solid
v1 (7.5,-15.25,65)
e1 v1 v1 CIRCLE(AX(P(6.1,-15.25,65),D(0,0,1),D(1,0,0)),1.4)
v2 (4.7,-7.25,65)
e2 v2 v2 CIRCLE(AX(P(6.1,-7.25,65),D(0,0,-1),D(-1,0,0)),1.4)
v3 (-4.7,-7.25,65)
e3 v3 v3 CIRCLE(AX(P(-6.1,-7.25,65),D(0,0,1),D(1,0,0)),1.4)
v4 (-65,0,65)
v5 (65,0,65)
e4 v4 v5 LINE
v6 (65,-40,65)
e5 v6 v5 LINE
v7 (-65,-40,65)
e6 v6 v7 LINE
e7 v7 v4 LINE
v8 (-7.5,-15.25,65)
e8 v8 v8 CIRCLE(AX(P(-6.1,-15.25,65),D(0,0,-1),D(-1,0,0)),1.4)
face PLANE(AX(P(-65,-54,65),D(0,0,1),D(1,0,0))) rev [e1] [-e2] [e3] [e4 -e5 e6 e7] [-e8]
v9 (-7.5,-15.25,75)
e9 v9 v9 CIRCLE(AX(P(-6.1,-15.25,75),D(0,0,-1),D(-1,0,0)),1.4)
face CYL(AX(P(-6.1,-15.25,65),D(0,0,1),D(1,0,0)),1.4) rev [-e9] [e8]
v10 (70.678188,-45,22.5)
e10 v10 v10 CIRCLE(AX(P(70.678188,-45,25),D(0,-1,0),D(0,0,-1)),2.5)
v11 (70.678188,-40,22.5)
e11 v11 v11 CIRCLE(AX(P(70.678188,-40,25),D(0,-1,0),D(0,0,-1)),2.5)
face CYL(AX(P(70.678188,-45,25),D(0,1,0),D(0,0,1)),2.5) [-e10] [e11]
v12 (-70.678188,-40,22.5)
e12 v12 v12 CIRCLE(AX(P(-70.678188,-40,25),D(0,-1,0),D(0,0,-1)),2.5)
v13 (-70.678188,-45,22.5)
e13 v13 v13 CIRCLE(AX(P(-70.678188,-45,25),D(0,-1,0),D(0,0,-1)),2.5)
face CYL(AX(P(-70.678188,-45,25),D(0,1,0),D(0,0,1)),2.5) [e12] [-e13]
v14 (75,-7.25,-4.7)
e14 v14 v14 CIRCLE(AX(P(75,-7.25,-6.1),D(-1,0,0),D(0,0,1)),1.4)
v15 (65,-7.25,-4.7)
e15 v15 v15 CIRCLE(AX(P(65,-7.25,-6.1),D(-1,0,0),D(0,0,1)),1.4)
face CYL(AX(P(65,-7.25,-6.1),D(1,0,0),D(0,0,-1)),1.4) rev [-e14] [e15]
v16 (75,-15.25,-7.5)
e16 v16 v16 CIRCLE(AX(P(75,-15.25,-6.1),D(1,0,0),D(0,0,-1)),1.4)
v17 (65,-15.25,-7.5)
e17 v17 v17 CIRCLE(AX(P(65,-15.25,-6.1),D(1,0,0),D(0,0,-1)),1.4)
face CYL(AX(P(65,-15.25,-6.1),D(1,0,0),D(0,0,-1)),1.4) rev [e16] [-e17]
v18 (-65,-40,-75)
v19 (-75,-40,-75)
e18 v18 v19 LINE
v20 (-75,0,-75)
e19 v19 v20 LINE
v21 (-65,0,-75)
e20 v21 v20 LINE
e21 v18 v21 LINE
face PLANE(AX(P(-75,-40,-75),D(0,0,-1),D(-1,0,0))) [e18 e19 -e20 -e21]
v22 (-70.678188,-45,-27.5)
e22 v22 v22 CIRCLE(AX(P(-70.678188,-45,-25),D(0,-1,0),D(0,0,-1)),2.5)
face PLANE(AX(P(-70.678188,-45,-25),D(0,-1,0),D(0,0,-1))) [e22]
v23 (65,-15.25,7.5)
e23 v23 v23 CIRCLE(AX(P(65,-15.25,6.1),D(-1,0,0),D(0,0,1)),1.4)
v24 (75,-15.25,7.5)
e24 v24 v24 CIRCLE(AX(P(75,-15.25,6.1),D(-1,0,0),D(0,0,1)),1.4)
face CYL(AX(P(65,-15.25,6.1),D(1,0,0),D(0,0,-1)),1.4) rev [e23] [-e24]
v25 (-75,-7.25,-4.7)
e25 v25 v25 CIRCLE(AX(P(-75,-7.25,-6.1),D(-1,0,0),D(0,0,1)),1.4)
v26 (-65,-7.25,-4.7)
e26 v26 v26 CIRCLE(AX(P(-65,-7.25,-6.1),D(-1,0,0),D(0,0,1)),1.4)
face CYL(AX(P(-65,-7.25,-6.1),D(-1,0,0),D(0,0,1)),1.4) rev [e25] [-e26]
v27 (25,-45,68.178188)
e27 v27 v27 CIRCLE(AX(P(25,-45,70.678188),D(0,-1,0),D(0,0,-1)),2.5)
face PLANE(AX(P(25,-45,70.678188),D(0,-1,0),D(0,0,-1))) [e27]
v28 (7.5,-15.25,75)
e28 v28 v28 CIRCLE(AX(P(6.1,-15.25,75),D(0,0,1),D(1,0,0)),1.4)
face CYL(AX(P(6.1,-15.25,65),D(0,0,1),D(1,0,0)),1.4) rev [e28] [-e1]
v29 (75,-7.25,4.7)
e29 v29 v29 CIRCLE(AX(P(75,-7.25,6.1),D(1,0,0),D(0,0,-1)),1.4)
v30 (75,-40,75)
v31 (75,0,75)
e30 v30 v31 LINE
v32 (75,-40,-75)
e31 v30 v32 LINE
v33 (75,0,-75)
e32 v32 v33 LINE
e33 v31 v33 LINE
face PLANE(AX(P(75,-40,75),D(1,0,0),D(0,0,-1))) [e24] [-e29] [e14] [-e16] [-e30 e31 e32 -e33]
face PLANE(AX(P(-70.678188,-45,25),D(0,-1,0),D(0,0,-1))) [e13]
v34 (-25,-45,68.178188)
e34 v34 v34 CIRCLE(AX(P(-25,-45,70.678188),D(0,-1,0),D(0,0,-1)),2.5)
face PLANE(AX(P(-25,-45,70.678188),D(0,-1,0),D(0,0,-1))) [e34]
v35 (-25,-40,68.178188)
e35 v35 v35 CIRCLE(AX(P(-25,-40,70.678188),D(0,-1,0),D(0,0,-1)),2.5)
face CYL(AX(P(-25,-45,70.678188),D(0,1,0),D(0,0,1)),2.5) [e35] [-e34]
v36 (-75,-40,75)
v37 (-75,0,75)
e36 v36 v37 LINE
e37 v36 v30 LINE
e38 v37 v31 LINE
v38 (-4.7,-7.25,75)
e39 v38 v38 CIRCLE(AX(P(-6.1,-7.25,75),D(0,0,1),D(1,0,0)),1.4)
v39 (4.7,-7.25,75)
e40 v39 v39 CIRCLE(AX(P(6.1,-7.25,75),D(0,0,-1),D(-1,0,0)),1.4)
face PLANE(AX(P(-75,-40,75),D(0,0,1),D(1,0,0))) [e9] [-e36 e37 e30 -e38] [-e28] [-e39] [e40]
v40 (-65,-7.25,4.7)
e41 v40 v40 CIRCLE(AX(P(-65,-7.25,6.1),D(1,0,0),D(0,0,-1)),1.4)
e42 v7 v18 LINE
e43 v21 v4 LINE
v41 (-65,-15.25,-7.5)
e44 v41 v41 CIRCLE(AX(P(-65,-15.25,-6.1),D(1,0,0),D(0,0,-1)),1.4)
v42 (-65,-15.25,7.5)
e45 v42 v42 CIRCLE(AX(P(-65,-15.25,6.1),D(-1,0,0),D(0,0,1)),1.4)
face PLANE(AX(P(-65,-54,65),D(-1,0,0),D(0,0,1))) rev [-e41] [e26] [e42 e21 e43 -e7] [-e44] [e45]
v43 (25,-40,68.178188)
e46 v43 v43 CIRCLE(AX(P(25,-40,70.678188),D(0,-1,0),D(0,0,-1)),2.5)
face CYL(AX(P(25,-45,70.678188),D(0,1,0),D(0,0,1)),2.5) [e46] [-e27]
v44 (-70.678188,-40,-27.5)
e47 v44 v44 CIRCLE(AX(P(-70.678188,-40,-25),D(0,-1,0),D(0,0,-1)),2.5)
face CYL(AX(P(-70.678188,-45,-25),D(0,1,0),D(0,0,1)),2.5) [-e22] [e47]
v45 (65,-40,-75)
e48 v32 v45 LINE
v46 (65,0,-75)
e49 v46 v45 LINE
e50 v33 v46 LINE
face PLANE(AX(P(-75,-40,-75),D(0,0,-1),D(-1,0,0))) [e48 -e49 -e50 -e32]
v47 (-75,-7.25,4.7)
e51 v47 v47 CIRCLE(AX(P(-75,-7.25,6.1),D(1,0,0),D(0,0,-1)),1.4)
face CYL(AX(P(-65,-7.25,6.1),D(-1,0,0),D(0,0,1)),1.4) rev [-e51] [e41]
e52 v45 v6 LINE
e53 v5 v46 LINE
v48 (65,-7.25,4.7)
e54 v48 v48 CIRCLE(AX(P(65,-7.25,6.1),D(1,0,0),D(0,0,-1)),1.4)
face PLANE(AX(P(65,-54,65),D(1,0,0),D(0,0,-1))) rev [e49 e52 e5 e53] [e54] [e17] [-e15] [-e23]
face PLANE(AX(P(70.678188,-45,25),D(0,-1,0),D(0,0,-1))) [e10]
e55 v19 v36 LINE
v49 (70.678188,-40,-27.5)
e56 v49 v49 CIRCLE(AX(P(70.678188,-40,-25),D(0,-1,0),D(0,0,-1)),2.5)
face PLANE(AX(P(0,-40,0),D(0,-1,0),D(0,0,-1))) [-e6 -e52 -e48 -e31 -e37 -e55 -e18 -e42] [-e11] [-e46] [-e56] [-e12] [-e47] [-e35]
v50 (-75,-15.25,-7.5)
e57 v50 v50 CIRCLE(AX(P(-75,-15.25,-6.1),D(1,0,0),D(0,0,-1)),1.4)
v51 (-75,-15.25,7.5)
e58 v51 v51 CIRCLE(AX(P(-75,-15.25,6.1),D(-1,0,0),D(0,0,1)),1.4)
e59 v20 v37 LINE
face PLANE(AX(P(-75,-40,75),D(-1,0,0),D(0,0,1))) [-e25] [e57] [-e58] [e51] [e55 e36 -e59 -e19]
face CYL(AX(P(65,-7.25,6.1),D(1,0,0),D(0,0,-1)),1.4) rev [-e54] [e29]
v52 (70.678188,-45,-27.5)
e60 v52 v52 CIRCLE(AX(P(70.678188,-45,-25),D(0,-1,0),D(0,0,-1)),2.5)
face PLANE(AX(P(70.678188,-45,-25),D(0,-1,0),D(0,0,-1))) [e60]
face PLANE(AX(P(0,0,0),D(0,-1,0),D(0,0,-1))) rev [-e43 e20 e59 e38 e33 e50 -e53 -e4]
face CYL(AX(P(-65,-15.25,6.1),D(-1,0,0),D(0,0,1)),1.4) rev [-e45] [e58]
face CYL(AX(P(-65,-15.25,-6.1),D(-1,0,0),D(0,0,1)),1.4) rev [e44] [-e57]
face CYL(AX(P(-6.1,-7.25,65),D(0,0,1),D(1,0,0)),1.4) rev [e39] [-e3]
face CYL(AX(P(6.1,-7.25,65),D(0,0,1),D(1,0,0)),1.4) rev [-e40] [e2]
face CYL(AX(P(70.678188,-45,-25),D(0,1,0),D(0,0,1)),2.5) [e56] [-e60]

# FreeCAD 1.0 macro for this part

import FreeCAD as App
import Part
import Sketcher


def add_polygon(sketch, points):
    """Adds a closed chain of lines whose ends are joined by coincident constraints."""
    first, n = sketch.GeometryCount, len(points)
    for a, b in zip(points, points[1:] + points[:1]):
        sketch.addGeometry(Part.LineSegment(App.Vector(*a, 0), App.Vector(*b, 0)), False)
    for i in range(n):
        sketch.addConstraint(Sketcher.Constraint("Coincident", first + i, 2, first + (i + 1) % n, 1))

doc = App.newDocument("Part")
params = doc.addObject("Spreadsheet::Sheet", "Params")
for row, (alias, value) in enumerate([
    ("sketch1_width", "150 mm"),
    ("pad1_length", "40 mm"),
    ("sketch2_width", "130 mm"),
    ("pocket1_length", "54 mm"),
    ("sketch3_diameter", "5 mm"),
    ("pad2_length", "5 mm"),
    ("sketch4_diameter", "2.8 mm"),
    ("pocket2_length", "10 mm"),
    ("sketch5_width", "130 mm"),
], start=1):
    params.set(f"A{row}", alias)
    params.set(f"B{row}", "=" + value)
    params.setAlias(f"B{row}", alias)

body = doc.addObject("PartDesign::Body", "Body")

# Sketch on XZ plane
sketch1 = doc.addObject("Sketcher::SketchObject", "Sketch")
body.addObject(sketch1)
sketch1.AttachmentSupport = (doc.XZ_Plane, [""])
sketch1.MapMode = "FlatFace"
add_polygon(sketch1, [(-75, -75), (-75, 75), (75, 75), (75, -75)])  # lines 0-3
sketch1.addConstraint([
    Sketcher.Constraint("Vertical", 0),
    Sketcher.Constraint("Horizontal", 1),
    Sketcher.Constraint("Vertical", 2),
    Sketcher.Constraint("Horizontal", 3),
    Sketcher.Constraint("Symmetric", 0, 2, 2, 2, -1, 1),
    Sketcher.Constraint("Equal", 3, 0),
    Sketcher.Constraint("DistanceX", 1, 1, 1, 2, 150.0),
])
sketch1.setExpression("Constraints[10]", "Params.sketch1_width")
pad1 = doc.addObject("PartDesign::Pad", "Pad")
body.addObject(pad1)
pad1.Profile = sketch1
pad1.setExpression("Length", "Params.pad1_length")

# Sketch on XZ plane
sketch2 = doc.addObject("Sketcher::SketchObject", "Sketch001")
body.addObject(sketch2)
sketch2.AttachmentSupport = (doc.XZ_Plane, [""])
sketch2.MapMode = "FlatFace"
add_polygon(sketch2, [(-65, -65), (-65, 65), (65, 65), (65, -65)])  # lines 0-3
sketch2.addConstraint([
    Sketcher.Constraint("Vertical", 0),
    Sketcher.Constraint("Horizontal", 1),
    Sketcher.Constraint("Vertical", 2),
    Sketcher.Constraint("Horizontal", 3),
    Sketcher.Constraint("Symmetric", 0, 2, 2, 2, -1, 1),
    Sketcher.Constraint("Equal", 3, 0),
    Sketcher.Constraint("DistanceX", 1, 1, 1, 2, 130.0),
])
sketch2.setExpression("Constraints[10]", "Params.sketch2_width")
pocket1 = doc.addObject("PartDesign::Pocket", "Pocket")
body.addObject(pocket1)
pocket1.Profile = sketch2
pocket1.setExpression("Length", "Params.pocket1_length")
pocket1.Reversed = True

# Sketch on XZ plane
sketch3 = doc.addObject("Sketcher::SketchObject", "Sketch002")
body.addObject(sketch3)
sketch3.AttachmentSupport = (doc.XZ_Plane, [""])
sketch3.MapMode = "FlatFace"
sketch3.AttachmentOffset = App.Placement(App.Vector(0, 0, 40), App.Rotation())
sketch3.addGeometry([
    Part.Circle(App.Vector(-70.7, -25, 0), App.Vector(0, 0, 1), 2.5),  # 0
    Part.Circle(App.Vector(-70.7, 25, 0), App.Vector(0, 0, 1), 2.5),  # 1
    Part.Circle(App.Vector(25, 70.7, 0), App.Vector(0, 0, 1), 2.5),  # 2
    Part.Circle(App.Vector(-25, 70.7, 0), App.Vector(0, 0, 1), 2.5),  # 3
    Part.Circle(App.Vector(70.7, -25, 0), App.Vector(0, 0, 1), 2.5),  # 4
    Part.Circle(App.Vector(70.7, 25, 0), App.Vector(0, 0, 1), 2.5),  # 5
    Part.Circle(App.Vector(-25, -70.7, 0), App.Vector(0, 0, 1), 2.5),  # 6
    Part.Circle(App.Vector(25, -70.7, 0), App.Vector(0, 0, 1), 2.5),  # 7
], False)
sketch3.addConstraint([
    Sketcher.Constraint("Equal", 0, 1),
    Sketcher.Constraint("Equal", 1, 2),
    Sketcher.Constraint("Equal", 2, 3),
    Sketcher.Constraint("Equal", 3, 4),
    Sketcher.Constraint("Equal", 4, 5),
    Sketcher.Constraint("Equal", 5, 6),
    Sketcher.Constraint("Equal", 6, 7),
    Sketcher.Constraint("Symmetric", 1, 3, 4, 3, -1, 1),
    Sketcher.Constraint("Symmetric", 0, 3, 5, 3, -1, 1),
    Sketcher.Constraint("Symmetric", 2, 3, 6, 3, -1, 1),
    Sketcher.Constraint("Symmetric", 3, 3, 7, 3, -1, 1),
    Sketcher.Constraint("Symmetric", 2, 3, 3, 3, -2),
    Sketcher.Constraint("Symmetric", 0, 3, 4, 3, -2),
    Sketcher.Constraint("Diameter", 0, 5.0),
    Sketcher.Constraint("DistanceY", 0, 3, -1, 1, 25.0),
    Sketcher.Constraint("DistanceX", -1, 1, 2, 3, 25.0),
    Sketcher.Constraint("DistanceX", 0, 3, -1, 1, 70.678188),
    Sketcher.Constraint("DistanceY", -1, 1, 2, 3, 70.678188),
])
sketch3.setExpression("Constraints[13]", "Params.sketch3_diameter")
pad2 = doc.addObject("PartDesign::Pad", "Pad001")
body.addObject(pad2)
pad2.Profile = sketch3
pad2.setExpression("Length", "Params.pad2_length")

# Sketch on YZ plane
sketch4 = doc.addObject("Sketcher::SketchObject", "Sketch003")
body.addObject(sketch4)
sketch4.AttachmentSupport = (doc.YZ_Plane, [""])
sketch4.MapMode = "FlatFace"
sketch4.AttachmentOffset = App.Placement(App.Vector(0, 0, -75), App.Rotation())
sketch4.addGeometry([
    Part.Circle(App.Vector(-7.2, -6.1, 0), App.Vector(0, 0, 1), 1.4),
    Part.Circle(App.Vector(-7.2, 6.1, 0), App.Vector(0, 0, 1), 1.4),
    Part.Circle(App.Vector(-15.2, 6.1, 0), App.Vector(0, 0, 1), 1.4),
    Part.Circle(App.Vector(-15.2, -6.1, 0), App.Vector(0, 0, 1), 1.4),
], False)
sketch4.addConstraint([
    Sketcher.Constraint("Equal", 0, 1),
    Sketcher.Constraint("Equal", 1, 2),
    Sketcher.Constraint("Equal", 2, 3),
    Sketcher.Constraint("Symmetric", 0, 3, 1, 3, -1),
    Sketcher.Constraint("Symmetric", 2, 3, 3, 3, -1),
    Sketcher.Constraint("Horizontal", 1, 3, 2, 3),
    Sketcher.Constraint("Diameter", 0, 2.8),
    Sketcher.Constraint("DistanceX", 2, 3, 1, 3, 8.0),
    Sketcher.Constraint("DistanceY", 0, 3, -1, 1, 6.1),
    Sketcher.Constraint("DistanceX", 0, 3, -1, 1, 7.25),
])
sketch4.setExpression("Constraints[6]", "Params.sketch4_diameter")
pocket2 = doc.addObject("PartDesign::Pocket", "Pocket001")
body.addObject(pocket2)
pocket2.Profile = sketch4
pocket2.setExpression("Length", "Params.pocket2_length")
pocket2.Reversed = True
doc.recompute()

polarpattern = doc.addObject("PartDesign::PolarPattern", "PolarPattern")
body.addObject(polarpattern)
polarpattern.Originals = [pocket2]
polarpattern.Axis = (doc.Y_Axis, [""])
polarpattern.Angle = 180
polarpattern.Occurrences = 3
body.Tip = polarpattern

# Sketch on XZ plane
sketch5 = doc.addObject("Sketcher::SketchObject", "Sketch004")
body.addObject(sketch5)
sketch5.AttachmentSupport = (doc.XZ_Plane, [""])
sketch5.MapMode = "FlatFace"
add_polygon(sketch5, [(-65, -161), (-65, -65), (65, -65), (65, -161)])  # lines 0-3
sketch5.addConstraint([
    Sketcher.Constraint("Vertical", 0),
    Sketcher.Constraint("Horizontal", 1),
    Sketcher.Constraint("Vertical", 2),
    Sketcher.Constraint("Horizontal", 3),
    Sketcher.Constraint("DistanceX", 1, 1, 1, 2, 130.0),
    Sketcher.Constraint("DistanceX", 0, 2, -1, 1, 65.0),
    Sketcher.Constraint("DistanceY", 0, 2, -1, 1, 65.0),
    Sketcher.Constraint("DistanceY", 0, 1, 0, 2, 96.398296),
])
sketch5.setExpression("Constraints[8]", "Params.sketch5_width")
pocket3 = doc.addObject("PartDesign::Pocket", "Pocket002")
body.addObject(pocket3)
pocket3.Profile = sketch5
pocket3.Type = "ThroughAll"
pocket3.Reversed = True

doc.recompute()
